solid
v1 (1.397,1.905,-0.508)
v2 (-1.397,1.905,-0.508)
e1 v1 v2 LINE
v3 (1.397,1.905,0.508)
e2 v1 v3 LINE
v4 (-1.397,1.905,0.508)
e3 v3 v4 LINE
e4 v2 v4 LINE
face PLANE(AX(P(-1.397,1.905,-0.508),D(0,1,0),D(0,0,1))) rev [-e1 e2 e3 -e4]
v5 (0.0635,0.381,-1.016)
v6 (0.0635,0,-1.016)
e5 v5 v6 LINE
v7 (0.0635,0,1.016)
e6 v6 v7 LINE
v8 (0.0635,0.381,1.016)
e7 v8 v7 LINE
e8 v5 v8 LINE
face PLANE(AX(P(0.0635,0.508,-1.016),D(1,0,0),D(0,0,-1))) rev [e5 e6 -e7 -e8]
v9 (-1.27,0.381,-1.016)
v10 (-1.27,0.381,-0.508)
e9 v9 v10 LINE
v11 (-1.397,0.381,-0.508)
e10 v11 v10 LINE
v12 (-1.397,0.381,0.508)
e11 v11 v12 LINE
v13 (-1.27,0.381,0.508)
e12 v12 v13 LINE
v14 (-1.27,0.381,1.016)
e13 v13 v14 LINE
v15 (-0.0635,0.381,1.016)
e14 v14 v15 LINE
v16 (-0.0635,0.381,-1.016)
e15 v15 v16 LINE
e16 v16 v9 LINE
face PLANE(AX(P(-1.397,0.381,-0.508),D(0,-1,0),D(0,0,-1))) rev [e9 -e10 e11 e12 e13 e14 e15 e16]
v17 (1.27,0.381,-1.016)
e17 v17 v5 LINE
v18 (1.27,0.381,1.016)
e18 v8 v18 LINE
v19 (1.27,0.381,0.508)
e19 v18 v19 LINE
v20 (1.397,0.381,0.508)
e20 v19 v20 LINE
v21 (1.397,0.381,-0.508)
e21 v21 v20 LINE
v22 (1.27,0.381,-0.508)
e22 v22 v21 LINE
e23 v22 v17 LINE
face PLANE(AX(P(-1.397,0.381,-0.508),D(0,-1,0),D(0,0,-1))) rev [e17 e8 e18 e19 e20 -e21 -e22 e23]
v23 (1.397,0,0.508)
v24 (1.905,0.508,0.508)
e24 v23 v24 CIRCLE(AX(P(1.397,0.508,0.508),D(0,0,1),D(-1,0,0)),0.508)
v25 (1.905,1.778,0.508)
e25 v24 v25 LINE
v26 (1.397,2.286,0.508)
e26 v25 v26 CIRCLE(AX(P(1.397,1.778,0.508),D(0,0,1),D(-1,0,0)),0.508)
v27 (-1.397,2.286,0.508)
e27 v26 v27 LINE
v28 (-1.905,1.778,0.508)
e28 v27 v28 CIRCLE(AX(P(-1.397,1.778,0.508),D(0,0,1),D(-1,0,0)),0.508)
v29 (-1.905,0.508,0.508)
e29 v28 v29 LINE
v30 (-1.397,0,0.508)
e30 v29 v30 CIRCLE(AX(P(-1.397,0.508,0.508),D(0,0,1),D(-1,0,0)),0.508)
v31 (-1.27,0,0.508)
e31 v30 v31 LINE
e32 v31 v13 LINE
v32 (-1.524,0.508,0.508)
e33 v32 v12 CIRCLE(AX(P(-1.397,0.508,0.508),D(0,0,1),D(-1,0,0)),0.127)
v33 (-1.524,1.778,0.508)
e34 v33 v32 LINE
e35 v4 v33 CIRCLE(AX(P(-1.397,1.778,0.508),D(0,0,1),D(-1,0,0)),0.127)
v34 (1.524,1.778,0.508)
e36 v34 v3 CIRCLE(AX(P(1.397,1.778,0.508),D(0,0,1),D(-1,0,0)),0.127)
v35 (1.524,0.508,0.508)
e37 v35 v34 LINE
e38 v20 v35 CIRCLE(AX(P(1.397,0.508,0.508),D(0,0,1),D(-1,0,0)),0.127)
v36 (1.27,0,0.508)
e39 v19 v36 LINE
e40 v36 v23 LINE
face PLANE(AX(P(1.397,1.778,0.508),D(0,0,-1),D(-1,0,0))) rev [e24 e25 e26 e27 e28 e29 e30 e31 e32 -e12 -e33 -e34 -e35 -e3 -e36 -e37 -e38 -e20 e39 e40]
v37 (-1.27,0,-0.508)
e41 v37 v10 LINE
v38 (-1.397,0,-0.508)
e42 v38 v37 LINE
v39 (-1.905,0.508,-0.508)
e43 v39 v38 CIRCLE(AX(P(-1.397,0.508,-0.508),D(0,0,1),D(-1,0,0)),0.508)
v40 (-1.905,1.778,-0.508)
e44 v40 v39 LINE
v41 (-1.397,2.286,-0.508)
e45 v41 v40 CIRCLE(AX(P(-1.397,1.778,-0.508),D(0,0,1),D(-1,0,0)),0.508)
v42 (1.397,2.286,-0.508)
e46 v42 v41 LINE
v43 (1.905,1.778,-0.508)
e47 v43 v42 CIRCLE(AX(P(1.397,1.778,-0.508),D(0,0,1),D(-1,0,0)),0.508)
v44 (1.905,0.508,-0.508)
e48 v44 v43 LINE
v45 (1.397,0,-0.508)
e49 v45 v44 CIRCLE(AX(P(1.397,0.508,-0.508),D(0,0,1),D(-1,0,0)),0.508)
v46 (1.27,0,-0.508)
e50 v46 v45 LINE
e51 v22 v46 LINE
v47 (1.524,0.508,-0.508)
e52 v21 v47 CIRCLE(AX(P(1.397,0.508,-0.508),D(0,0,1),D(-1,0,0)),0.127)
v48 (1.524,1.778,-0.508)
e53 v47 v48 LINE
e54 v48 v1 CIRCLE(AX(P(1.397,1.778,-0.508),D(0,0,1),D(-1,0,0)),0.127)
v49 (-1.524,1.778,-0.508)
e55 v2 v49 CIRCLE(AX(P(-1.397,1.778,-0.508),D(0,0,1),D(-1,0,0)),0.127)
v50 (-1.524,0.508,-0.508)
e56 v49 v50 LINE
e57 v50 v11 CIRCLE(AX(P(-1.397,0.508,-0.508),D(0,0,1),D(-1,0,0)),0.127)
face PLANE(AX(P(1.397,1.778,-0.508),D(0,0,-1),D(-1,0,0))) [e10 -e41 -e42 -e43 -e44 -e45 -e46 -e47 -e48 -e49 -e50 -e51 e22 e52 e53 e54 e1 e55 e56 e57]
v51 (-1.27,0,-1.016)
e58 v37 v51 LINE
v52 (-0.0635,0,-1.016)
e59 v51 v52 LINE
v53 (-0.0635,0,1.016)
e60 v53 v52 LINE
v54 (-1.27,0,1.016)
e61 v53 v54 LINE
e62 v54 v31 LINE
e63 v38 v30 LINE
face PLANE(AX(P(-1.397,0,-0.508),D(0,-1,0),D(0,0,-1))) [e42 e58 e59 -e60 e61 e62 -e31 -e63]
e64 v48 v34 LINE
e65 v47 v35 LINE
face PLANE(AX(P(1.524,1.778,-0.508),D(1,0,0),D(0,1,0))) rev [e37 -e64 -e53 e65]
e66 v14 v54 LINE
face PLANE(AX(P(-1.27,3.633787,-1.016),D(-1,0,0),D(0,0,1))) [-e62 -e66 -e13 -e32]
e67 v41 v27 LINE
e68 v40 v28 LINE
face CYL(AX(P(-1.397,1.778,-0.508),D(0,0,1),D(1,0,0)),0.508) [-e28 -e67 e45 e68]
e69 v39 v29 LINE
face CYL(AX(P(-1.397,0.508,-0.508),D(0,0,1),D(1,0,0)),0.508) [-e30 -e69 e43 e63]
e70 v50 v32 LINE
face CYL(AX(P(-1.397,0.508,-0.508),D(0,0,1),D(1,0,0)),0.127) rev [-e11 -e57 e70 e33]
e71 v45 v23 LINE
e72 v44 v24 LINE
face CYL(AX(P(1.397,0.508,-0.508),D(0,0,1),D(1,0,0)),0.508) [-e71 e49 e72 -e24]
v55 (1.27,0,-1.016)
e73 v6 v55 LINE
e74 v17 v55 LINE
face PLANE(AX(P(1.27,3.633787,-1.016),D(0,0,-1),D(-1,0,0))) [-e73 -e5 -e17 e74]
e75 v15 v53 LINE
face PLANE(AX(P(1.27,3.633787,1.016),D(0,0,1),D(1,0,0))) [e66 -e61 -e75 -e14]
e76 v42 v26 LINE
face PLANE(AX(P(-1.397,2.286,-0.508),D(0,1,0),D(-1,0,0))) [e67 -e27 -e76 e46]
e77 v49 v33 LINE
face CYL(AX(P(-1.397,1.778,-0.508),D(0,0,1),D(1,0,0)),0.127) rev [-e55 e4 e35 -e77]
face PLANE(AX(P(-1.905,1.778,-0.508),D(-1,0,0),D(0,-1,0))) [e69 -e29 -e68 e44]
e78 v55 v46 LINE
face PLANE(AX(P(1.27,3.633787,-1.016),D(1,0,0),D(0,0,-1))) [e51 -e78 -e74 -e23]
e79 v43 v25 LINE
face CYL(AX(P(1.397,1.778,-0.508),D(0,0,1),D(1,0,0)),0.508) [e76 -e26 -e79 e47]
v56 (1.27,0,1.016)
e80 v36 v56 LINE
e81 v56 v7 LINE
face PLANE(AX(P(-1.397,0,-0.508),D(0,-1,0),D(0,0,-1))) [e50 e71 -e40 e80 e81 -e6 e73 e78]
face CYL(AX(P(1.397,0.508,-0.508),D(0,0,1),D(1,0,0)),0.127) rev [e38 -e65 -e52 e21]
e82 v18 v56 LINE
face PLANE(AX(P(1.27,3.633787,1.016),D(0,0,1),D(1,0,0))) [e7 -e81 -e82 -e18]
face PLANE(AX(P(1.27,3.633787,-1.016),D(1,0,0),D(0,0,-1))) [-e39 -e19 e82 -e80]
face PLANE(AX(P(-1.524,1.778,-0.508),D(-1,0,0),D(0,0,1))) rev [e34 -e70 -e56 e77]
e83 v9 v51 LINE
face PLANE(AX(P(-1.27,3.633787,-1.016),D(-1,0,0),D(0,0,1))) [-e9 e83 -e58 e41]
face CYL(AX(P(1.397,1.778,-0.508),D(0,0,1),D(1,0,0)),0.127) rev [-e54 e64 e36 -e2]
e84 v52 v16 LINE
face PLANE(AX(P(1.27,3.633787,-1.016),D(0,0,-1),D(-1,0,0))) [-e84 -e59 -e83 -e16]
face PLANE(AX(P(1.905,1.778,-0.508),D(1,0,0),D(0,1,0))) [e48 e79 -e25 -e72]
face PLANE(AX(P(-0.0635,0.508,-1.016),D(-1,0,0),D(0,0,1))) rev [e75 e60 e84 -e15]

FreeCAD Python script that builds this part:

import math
import FreeCAD as App
import Part
import Sketcher
Q = App.Units.Quantity

doc = App.newDocument("Part")
body = doc.addObject("PartDesign::Body", "Body")

# Sketch on XY plane
sketch1 = body.newObject("Sketcher::SketchObject", "Sketch")
sketch1.AttachmentSupport = (doc.getObject("XY_Plane"), [""])
sketch1.MapMode = "FlatFace"
sketch1.addGeometry(Part.LineSegment(App.Vector(1.4, 2.29, 0), App.Vector(-1.4, 2.29, 0)), False)
sketch1.addGeometry(Part.ArcOfCircle(Part.Circle(App.Vector(-1.4, 1.78, 0), App.Vector(0, 0, 1), 0.51), math.radians(90), math.radians(180)), False)
sketch1.addGeometry(Part.LineSegment(App.Vector(-1.91, 1.78, 0), App.Vector(-1.91, 0.51, 0)), False)
sketch1.addGeometry(Part.ArcOfCircle(Part.Circle(App.Vector(-1.4, 0.51, 0), App.Vector(0, 0, 1), 0.51), math.radians(180), math.radians(270)), False)
sketch1.addGeometry(Part.LineSegment(App.Vector(-1.4, 0, 0), App.Vector(1.4, 0, 0)), False)
sketch1.addGeometry(Part.ArcOfCircle(Part.Circle(App.Vector(1.4, 0.51, 0), App.Vector(0, 0, 1), 0.51), math.radians(-90), math.radians(0)), False)
sketch1.addGeometry(Part.LineSegment(App.Vector(1.91, 0.51, 0), App.Vector(1.91, 1.78, 0)), False)
sketch1.addGeometry(Part.ArcOfCircle(Part.Circle(App.Vector(1.4, 1.78, 0), App.Vector(0, 0, 1), 0.51), math.radians(0), math.radians(90)), False)
sketch1.addGeometry(Part.LineSegment(App.Vector(-1.4, 1.91, 0), App.Vector(1.4, 1.91, 0)), False)
sketch1.addGeometry(Part.ArcOfCircle(Part.Circle(App.Vector(1.4, 1.78, 0), App.Vector(0, 0, 1), 0.13), math.radians(0), math.radians(90)), False)
sketch1.addGeometry(Part.LineSegment(App.Vector(1.52, 1.78, 0), App.Vector(1.52, 0.51, 0)), False)
sketch1.addGeometry(Part.ArcOfCircle(Part.Circle(App.Vector(1.4, 0.51, 0), App.Vector(0, 0, 1), 0.13), math.radians(-90), math.radians(0)), False)
sketch1.addGeometry(Part.LineSegment(App.Vector(1.4, 0.38, 0), App.Vector(-1.4, 0.38, 0)), False)
sketch1.addGeometry(Part.ArcOfCircle(Part.Circle(App.Vector(-1.4, 0.51, 0), App.Vector(0, 0, 1), 0.13), math.radians(-180), math.radians(-90)), False)
sketch1.addGeometry(Part.LineSegment(App.Vector(-1.52, 0.51, 0), App.Vector(-1.52, 1.78, 0)), False)
sketch1.addGeometry(Part.ArcOfCircle(Part.Circle(App.Vector(-1.4, 1.78, 0), App.Vector(0, 0, 1), 0.13), math.radians(90), math.radians(180)), False)
sketch1.addConstraint(Sketcher.Constraint("Tangent", 0, 2, 1, 1))
sketch1.addConstraint(Sketcher.Constraint("Tangent", 1, 2, 2, 1))
sketch1.addConstraint(Sketcher.Constraint("Tangent", 2, 2, 3, 1))
sketch1.addConstraint(Sketcher.Constraint("Tangent", 3, 2, 4, 1))
sketch1.addConstraint(Sketcher.Constraint("Tangent", 4, 2, 5, 1))
sketch1.addConstraint(Sketcher.Constraint("Tangent", 5, 2, 6, 1))
sketch1.addConstraint(Sketcher.Constraint("Tangent", 6, 2, 7, 1))
sketch1.addConstraint(Sketcher.Constraint("Tangent", 7, 2, 0, 1))
sketch1.addConstraint(Sketcher.Constraint("Tangent", 8, 2, 9, 2))
sketch1.addConstraint(Sketcher.Constraint("Tangent", 9, 1, 10, 1))
sketch1.addConstraint(Sketcher.Constraint("Tangent", 10, 2, 11, 2))
sketch1.addConstraint(Sketcher.Constraint("Tangent", 11, 1, 12, 1))
sketch1.addConstraint(Sketcher.Constraint("Tangent", 12, 2, 13, 2))
sketch1.addConstraint(Sketcher.Constraint("Tangent", 13, 1, 14, 1))
sketch1.addConstraint(Sketcher.Constraint("Tangent", 14, 2, 15, 2))
sketch1.addConstraint(Sketcher.Constraint("Tangent", 15, 1, 8, 1))
sketch1.addConstraint(Sketcher.Constraint("Horizontal", 0))
sketch1.addConstraint(Sketcher.Constraint("Vertical", 2))
sketch1.addConstraint(Sketcher.Constraint("Horizontal", 4))
sketch1.addConstraint(Sketcher.Constraint("Vertical", 6))
sketch1.addConstraint(Sketcher.Constraint("Horizontal", 8))
sketch1.addConstraint(Sketcher.Constraint("Vertical", 10))
sketch1.addConstraint(Sketcher.Constraint("Horizontal", 12))
sketch1.addConstraint(Sketcher.Constraint("Vertical", 14))
sketch1.addConstraint(Sketcher.Constraint("Coincident", 9, 3, 7, 3))
sketch1.addConstraint(Sketcher.Constraint("Coincident", 11, 3, 5, 3))
sketch1.addConstraint(Sketcher.Constraint("Coincident", 13, 3, 3, 3))
sketch1.addConstraint(Sketcher.Constraint("Equal", 1, 3))
sketch1.addConstraint(Sketcher.Constraint("Equal", 3, 5))
sketch1.addConstraint(Sketcher.Constraint("Equal", 5, 7))
sketch1.addConstraint(Sketcher.Constraint("Equal", 13, 15))
sketch1.addConstraint(Sketcher.Constraint("Symmetric", 3, 2, 4, 2, -1, 1))
sketch1.addConstraint(Sketcher.Constraint("Radius", 1, Q("0.02 in")))
sketch1.addConstraint(Sketcher.Constraint("Radius", 9, Q("0.005 in")))
sketch1.addConstraint(Sketcher.Constraint("DistanceX", 0, 2, 0, 1, Q("0.11 in")))
sketch1.addConstraint(Sketcher.Constraint("DistanceY", 2, 2, 2, 1, Q("0.05 in")))
pad1 = body.newObject("PartDesign::Pad", "Pad")
pad1.Profile = sketch1
pad1.Type = "TwoLengths"
pad1.Length = Q("0.02 in")
pad1.Length2 = Q("0.02 in")

# Sketch on XZ plane
sketch2 = body.newObject("Sketcher::SketchObject", "Sketch001")
sketch2.AttachmentSupport = (doc.getObject("XZ_Plane"), [""])
sketch2.MapMode = "FlatFace"
sketch2.addGeometry(Part.LineSegment(App.Vector(-1.3, 1, 0), App.Vector(-1.3, -1, 0)), False)
sketch2.addGeometry(Part.LineSegment(App.Vector(-1.3, -1, 0), App.Vector(1.3, -1, 0)), False)
sketch2.addGeometry(Part.LineSegment(App.Vector(1.3, -1, 0), App.Vector(1.3, 1, 0)), False)
sketch2.addGeometry(Part.LineSegment(App.Vector(1.3, 1, 0), App.Vector(-1.3, 1, 0)), False)
sketch2.addConstraint(Sketcher.Constraint("Coincident", 0, 2, 1, 1))
sketch2.addConstraint(Sketcher.Constraint("Coincident", 1, 2, 2, 1))
sketch2.addConstraint(Sketcher.Constraint("Coincident", 2, 2, 3, 1))
sketch2.addConstraint(Sketcher.Constraint("Coincident", 3, 2, 0, 1))
sketch2.addConstraint(Sketcher.Constraint("Vertical", 0))
sketch2.addConstraint(Sketcher.Constraint("Horizontal", 1))
sketch2.addConstraint(Sketcher.Constraint("Vertical", 2))
sketch2.addConstraint(Sketcher.Constraint("Horizontal", 3))
sketch2.addConstraint(Sketcher.Constraint("Symmetric", 0, 2, 2, 2, -1, 1))
sketch2.addConstraint(Sketcher.Constraint("DistanceX", 1, 1, 1, 2, Q("0.1 in")))
sketch2.addConstraint(Sketcher.Constraint("DistanceY", 0, 2, 0, 1, Q("0.08 in")))
pad2 = body.newObject("PartDesign::Pad", "Pad001")
pad2.Profile = sketch2
pad2.Length = Q("0.015 in")
pad2.Reversed = True

# Sketch on XZ plane
sketch3 = body.newObject("Sketcher::SketchObject", "Sketch002")
sketch3.AttachmentSupport = (doc.getObject("XZ_Plane"), [""])
sketch3.MapMode = "FlatFace"
sketch3.addGeometry(Part.LineSegment(App.Vector(-0.06, 1.02, 0), App.Vector(-0.06, -1.02, 0)), False)
sketch3.addGeometry(Part.LineSegment(App.Vector(-0.06, -1.02, 0), App.Vector(0.06, -1.02, 0)), False)
sketch3.addGeometry(Part.LineSegment(App.Vector(0.06, -1.02, 0), App.Vector(0.06, 1.02, 0)), False)
sketch3.addGeometry(Part.LineSegment(App.Vector(0.06, 1.02, 0), App.Vector(-0.06, 1.02, 0)), False)
sketch3.addConstraint(Sketcher.Constraint("Coincident", 0, 2, 1, 1))
sketch3.addConstraint(Sketcher.Constraint("Coincident", 1, 2, 2, 1))
sketch3.addConstraint(Sketcher.Constraint("Coincident", 2, 2, 3, 1))
sketch3.addConstraint(Sketcher.Constraint("Coincident", 3, 2, 0, 1))
sketch3.addConstraint(Sketcher.Constraint("Vertical", 0))
sketch3.addConstraint(Sketcher.Constraint("Horizontal", 1))
sketch3.addConstraint(Sketcher.Constraint("Vertical", 2))
sketch3.addConstraint(Sketcher.Constraint("Horizontal", 3))
sketch3.addConstraint(Sketcher.Constraint("Symmetric", 0, 2, 2, 2, -1, 1))
sketch3.addConstraint(Sketcher.Constraint("DistanceY", 0, 2, 0, 1, Q("0.08 in")))
sketch3.addConstraint(Sketcher.Constraint("DistanceX", 1, 1, 1, 2, Q("0.005 in")))
pocket1 = body.newObject("PartDesign::Pocket", "Pocket")
pocket1.Profile = sketch3
pocket1.Length = Q("0.02 in")

doc.recompute()
